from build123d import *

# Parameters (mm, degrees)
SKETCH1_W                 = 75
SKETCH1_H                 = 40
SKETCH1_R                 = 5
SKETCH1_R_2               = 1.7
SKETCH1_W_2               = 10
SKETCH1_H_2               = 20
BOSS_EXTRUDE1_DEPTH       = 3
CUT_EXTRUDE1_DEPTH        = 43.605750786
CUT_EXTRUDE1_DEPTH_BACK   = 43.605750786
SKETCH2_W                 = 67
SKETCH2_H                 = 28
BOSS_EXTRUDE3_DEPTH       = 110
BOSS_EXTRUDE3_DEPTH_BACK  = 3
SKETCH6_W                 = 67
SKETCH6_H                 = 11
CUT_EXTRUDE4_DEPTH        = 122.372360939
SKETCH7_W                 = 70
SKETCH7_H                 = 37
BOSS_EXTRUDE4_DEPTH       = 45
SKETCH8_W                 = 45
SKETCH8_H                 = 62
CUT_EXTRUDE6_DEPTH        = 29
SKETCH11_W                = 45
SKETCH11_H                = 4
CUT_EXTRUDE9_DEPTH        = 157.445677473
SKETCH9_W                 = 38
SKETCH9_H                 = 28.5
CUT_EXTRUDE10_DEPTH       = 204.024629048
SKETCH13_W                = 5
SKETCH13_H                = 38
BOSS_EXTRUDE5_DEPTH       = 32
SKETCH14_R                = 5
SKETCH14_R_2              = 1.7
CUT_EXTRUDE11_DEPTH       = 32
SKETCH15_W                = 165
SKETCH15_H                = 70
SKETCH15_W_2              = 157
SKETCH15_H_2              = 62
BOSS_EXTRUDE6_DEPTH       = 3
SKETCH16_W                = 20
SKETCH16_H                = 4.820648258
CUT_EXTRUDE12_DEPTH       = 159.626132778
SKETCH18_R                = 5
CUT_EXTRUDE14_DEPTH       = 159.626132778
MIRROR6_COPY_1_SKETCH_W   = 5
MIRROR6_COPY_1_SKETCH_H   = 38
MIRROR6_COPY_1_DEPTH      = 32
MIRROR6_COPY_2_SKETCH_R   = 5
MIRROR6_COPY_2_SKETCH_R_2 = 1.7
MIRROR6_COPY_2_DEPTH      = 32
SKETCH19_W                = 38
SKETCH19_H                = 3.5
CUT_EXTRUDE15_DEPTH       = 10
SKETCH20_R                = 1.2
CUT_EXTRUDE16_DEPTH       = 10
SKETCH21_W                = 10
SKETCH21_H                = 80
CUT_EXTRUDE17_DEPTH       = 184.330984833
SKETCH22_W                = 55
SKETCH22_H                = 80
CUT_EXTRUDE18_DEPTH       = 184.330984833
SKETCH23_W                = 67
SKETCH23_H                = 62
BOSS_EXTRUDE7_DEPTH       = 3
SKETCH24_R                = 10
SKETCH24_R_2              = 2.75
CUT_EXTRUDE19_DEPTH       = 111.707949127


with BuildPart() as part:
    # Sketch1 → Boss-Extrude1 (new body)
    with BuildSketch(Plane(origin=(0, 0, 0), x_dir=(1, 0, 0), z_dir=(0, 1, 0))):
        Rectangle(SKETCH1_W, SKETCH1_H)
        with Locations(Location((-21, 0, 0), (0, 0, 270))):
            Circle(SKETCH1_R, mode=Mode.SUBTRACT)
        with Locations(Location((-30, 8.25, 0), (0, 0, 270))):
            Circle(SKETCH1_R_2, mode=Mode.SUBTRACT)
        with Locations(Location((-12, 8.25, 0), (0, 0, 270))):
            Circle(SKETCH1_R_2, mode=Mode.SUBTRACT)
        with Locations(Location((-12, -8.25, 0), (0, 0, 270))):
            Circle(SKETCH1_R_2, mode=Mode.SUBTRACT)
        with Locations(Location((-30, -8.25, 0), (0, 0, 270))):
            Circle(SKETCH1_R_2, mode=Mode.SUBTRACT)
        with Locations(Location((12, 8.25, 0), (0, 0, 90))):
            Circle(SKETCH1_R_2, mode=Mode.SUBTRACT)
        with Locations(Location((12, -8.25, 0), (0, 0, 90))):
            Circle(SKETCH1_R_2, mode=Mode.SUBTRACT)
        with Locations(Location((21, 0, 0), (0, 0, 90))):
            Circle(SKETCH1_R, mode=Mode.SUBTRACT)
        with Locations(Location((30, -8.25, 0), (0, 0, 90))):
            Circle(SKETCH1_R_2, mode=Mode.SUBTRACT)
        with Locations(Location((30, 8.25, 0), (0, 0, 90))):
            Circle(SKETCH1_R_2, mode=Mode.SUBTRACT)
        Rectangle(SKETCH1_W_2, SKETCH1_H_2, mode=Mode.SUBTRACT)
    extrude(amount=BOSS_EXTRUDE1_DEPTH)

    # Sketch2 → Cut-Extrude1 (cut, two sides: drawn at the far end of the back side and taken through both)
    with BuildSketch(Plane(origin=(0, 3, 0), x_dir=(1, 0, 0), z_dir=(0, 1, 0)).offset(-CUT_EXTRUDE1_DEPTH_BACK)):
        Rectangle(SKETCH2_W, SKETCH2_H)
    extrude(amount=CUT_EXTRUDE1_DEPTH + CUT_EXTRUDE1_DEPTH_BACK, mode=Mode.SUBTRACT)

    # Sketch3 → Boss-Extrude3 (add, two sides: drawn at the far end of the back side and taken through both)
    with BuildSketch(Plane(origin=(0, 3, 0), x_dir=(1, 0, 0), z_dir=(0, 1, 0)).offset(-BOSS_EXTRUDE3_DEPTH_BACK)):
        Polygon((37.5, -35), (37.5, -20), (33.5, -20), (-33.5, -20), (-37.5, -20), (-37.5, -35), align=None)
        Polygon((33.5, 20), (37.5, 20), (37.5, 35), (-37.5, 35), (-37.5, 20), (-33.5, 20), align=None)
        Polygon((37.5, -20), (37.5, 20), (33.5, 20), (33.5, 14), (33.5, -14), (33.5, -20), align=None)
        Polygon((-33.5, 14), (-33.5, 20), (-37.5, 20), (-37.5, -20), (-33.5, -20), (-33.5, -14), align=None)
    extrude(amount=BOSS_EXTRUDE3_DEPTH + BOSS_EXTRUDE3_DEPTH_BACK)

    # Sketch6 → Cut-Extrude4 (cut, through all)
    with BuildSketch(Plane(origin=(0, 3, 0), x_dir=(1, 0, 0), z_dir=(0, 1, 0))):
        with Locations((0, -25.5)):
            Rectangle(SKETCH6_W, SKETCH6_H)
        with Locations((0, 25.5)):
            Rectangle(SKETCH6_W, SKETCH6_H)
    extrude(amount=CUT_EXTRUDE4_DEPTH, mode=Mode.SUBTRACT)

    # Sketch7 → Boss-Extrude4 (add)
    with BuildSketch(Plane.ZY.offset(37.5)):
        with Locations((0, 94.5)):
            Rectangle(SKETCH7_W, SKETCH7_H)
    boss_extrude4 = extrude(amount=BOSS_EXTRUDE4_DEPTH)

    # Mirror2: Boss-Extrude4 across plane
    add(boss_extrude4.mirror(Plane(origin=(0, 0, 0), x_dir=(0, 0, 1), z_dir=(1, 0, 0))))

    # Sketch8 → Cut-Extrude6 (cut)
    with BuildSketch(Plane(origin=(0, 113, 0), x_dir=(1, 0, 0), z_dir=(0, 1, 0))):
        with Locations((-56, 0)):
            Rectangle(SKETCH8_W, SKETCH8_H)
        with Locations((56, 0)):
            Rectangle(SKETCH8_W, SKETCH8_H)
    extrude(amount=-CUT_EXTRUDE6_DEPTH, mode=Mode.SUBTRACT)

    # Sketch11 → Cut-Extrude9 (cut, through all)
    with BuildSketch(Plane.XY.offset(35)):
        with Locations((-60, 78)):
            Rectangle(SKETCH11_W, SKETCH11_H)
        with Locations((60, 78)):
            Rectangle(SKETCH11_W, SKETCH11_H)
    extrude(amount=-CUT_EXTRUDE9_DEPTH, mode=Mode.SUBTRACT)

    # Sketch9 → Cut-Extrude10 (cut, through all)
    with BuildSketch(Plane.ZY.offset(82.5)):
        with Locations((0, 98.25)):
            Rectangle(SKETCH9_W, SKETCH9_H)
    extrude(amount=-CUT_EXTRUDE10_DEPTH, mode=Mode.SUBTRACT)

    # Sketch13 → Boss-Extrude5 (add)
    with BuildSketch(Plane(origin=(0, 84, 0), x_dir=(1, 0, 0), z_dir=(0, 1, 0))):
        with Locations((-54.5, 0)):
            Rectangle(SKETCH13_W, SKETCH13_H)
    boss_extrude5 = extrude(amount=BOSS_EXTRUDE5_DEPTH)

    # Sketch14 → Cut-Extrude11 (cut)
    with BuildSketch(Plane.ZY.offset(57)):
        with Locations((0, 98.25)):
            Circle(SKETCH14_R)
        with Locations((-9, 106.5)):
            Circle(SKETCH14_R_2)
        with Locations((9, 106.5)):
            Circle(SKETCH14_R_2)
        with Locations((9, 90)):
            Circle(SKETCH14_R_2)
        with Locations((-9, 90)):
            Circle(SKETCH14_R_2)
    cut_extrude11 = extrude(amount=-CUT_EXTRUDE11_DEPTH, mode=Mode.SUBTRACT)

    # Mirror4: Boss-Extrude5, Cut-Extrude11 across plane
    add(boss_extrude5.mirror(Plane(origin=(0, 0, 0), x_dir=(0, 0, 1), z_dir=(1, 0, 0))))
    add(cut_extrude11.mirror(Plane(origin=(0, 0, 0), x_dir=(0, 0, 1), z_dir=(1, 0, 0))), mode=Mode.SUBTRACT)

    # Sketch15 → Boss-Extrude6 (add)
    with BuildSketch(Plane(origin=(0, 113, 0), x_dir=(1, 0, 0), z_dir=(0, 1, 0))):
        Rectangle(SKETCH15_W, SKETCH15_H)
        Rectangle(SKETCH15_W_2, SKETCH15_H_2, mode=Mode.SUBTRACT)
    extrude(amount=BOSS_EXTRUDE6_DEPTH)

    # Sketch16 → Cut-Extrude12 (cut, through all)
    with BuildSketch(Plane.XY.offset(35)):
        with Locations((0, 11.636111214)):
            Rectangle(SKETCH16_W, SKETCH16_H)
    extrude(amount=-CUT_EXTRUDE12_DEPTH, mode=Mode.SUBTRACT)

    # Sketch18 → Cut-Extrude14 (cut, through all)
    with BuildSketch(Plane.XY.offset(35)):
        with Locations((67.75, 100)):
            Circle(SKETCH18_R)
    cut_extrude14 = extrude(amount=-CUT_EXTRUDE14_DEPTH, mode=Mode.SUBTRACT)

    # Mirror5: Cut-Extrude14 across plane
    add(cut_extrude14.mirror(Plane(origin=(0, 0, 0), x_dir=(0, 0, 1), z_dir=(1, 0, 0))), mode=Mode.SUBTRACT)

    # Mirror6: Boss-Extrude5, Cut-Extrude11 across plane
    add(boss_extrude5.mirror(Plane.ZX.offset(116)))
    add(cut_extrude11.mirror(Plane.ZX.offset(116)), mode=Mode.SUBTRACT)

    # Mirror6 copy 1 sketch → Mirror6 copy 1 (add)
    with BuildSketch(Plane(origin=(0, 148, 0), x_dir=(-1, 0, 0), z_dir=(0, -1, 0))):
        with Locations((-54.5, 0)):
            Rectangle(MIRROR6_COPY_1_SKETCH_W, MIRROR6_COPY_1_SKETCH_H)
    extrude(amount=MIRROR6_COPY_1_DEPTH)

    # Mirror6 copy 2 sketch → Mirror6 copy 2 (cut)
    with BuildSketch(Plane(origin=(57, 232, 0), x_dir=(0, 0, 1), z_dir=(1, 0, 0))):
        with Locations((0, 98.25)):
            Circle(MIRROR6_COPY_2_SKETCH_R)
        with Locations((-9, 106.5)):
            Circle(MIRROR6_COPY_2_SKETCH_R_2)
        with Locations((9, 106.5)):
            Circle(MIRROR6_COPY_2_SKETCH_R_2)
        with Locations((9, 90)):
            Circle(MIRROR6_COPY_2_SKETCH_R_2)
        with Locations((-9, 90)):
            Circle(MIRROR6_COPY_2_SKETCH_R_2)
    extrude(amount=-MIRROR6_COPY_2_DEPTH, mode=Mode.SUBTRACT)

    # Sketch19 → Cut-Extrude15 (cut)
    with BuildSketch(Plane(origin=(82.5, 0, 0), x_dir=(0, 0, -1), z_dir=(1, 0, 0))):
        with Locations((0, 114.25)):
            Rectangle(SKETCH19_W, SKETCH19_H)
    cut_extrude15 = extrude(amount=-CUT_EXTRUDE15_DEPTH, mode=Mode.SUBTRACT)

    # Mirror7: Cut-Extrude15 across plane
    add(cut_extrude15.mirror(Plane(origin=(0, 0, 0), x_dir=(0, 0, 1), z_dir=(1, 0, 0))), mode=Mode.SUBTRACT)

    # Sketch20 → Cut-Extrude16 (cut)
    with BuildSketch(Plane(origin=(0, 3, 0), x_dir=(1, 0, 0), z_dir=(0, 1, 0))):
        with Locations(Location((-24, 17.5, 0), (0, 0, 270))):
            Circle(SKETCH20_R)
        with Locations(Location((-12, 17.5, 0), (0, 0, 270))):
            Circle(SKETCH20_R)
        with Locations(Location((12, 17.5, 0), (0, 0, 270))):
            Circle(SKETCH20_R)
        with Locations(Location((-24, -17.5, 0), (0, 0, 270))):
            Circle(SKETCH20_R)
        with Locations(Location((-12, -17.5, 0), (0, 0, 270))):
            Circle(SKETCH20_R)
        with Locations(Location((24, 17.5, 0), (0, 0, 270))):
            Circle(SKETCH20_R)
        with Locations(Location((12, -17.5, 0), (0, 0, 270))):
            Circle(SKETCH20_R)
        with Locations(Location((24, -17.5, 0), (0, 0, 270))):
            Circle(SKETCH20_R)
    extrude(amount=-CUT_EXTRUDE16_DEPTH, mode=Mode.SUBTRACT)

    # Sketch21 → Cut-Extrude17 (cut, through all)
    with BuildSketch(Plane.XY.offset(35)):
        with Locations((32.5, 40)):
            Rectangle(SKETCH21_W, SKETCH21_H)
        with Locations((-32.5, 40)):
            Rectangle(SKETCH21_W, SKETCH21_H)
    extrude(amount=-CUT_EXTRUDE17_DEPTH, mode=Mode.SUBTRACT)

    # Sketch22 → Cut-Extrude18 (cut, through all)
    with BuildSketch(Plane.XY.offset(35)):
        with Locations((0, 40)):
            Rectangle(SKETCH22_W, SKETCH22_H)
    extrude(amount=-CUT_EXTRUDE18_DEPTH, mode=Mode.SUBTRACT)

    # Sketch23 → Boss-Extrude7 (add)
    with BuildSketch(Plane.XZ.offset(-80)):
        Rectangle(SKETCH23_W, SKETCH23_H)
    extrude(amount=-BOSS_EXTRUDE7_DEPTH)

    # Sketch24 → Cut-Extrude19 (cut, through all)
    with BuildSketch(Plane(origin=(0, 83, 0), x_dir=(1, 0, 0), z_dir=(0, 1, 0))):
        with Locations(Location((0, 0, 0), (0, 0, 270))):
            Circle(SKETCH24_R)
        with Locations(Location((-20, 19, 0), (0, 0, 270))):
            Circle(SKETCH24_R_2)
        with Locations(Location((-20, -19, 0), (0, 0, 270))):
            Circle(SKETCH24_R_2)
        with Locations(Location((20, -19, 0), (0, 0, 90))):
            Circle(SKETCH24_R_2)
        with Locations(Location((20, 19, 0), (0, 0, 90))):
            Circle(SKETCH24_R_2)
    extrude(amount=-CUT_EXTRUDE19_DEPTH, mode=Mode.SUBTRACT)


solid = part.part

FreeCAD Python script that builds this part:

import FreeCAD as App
import Part
import Sketcher

V = App.Vector


def add_polygon(sketch, points):
    """Adds a closed chain of lines whose ends are joined by coincident constraints."""
    first, n = sketch.GeometryCount, len(points)
    for a, b in zip(points, points[1:] + points[:1]):
        sketch.addGeometry(Part.LineSegment(App.Vector(*a, 0), App.Vector(*b, 0)), False)
    for i in range(n):
        sketch.addConstraint(Sketcher.Constraint("Coincident", first + i, 2, first + (i + 1) % n, 1))

doc = App.newDocument("Part")
body = doc.addObject("PartDesign::Body", "Body")

sketch1 = body.newObject("Sketcher::SketchObject", "Sketch")
sketch1.AttachmentSupport = (doc.getObject("XZ_Plane"), [""])
sketch1.MapMode = "FlatFace"
add_polygon(sketch1, [(-37.5, -20), (-37.5, 20), (37.5, 20), (37.5, -20)])
sketch1.addGeometry(Part.Circle(V(-30, 8.25, 0), V(0, 0, 1), 1.7), False)
sketch1.addGeometry(Part.Circle(V(-12, 8.25, 0), V(0, 0, 1), 1.7), False)
sketch1.addGeometry(Part.Circle(V(12, 8.25, 0), V(0, 0, 1), 1.7), False)
sketch1.addGeometry(Part.Circle(V(30, 8.25, 0), V(0, 0, 1), 1.7), False)
sketch1.addGeometry(Part.Circle(V(-21, 0, 0), V(0, 0, 1), 5), False)
add_polygon(sketch1, [(5, 10), (-5, 10), (-5, -10), (5, -10)])
sketch1.addGeometry(Part.Circle(V(-30, -8.25, 0), V(0, 0, 1), 1.7), False)
sketch1.addGeometry(Part.Circle(V(-12, -8.25, 0), V(0, 0, 1), 1.7), False)
sketch1.addGeometry(Part.Circle(V(21, 0, 0), V(0, 0, 1), 5), False)
sketch1.addGeometry(Part.Circle(V(12, -8.25, 0), V(0, 0, 1), 1.7), False)
sketch1.addGeometry(Part.Circle(V(30, -8.25, 0), V(0, 0, 1), 1.7), False)
sketch1.addConstraint(Sketcher.Constraint("Vertical", 0))
sketch1.addConstraint(Sketcher.Constraint("Horizontal", 1))
sketch1.addConstraint(Sketcher.Constraint("Vertical", 2))
sketch1.addConstraint(Sketcher.Constraint("Horizontal", 3))
sketch1.addConstraint(Sketcher.Constraint("Horizontal", 9))
sketch1.addConstraint(Sketcher.Constraint("Vertical", 10))
sketch1.addConstraint(Sketcher.Constraint("Horizontal", 11))
sketch1.addConstraint(Sketcher.Constraint("Vertical", 12))
sketch1.addConstraint(Sketcher.Constraint("Equal", 4, 5))
sketch1.addConstraint(Sketcher.Constraint("Equal", 5, 6))
sketch1.addConstraint(Sketcher.Constraint("Equal", 6, 7))
sketch1.addConstraint(Sketcher.Constraint("Equal", 7, 13))
sketch1.addConstraint(Sketcher.Constraint("Equal", 13, 14))
sketch1.addConstraint(Sketcher.Constraint("Equal", 8, 15))
sketch1.addConstraint(Sketcher.Constraint("Equal", 14, 16))
sketch1.addConstraint(Sketcher.Constraint("Equal", 16, 17))
sketch1.addConstraint(Sketcher.Constraint("Symmetric", 7, 3, 13, 3, -1, 1))
sketch1.addConstraint(Sketcher.Constraint("Symmetric", 6, 3, 14, 3, -1, 1))
sketch1.addConstraint(Sketcher.Constraint("Symmetric", 8, 3, 15, 3, -1, 1))
sketch1.addConstraint(Sketcher.Constraint("Symmetric", 5, 3, 16, 3, -1, 1))
sketch1.addConstraint(Sketcher.Constraint("Symmetric", 4, 3, 17, 3, -1, 1))
sketch1.addConstraint(Sketcher.Constraint("Symmetric", 0, 2, 2, 2, -1, 1))
sketch1.addConstraint(Sketcher.Constraint("Symmetric", 9, 2, 11, 2, -1, 1))
sketch1.addConstraint(Sketcher.Constraint("Symmetric", 5, 3, 6, 3, -2))
sketch1.addConstraint(Sketcher.Constraint("Symmetric", 4, 3, 7, 3, -2))
sketch1.addConstraint(Sketcher.Constraint("PointOnObject", 8, 3, -1))
sketch1.addConstraint(Sketcher.Constraint("Horizontal", 4, 3, 5, 3))
sketch1.addConstraint(Sketcher.Constraint("Diameter", 8, 10.0))
sketch1.addConstraint(Sketcher.Constraint("Diameter", 4, 3.4))
sketch1.addConstraint(Sketcher.Constraint("DistanceX", 1, 1, 1, 2, 75.0))
sketch1.addConstraint(Sketcher.Constraint("DistanceX", 9, 2, 9, 1, 10.0))
sketch1.addConstraint(Sketcher.Constraint("DistanceY", 0, 1, 0, 2, 40.0))
sketch1.addConstraint(Sketcher.Constraint("DistanceY", 10, 2, 10, 1, 20.0))
sketch1.addConstraint(Sketcher.Constraint("DistanceX", 4, 3, -1, 1, 30.0))
sketch1.addConstraint(Sketcher.Constraint("DistanceX", 5, 3, -1, 1, 12.0))
sketch1.addConstraint(Sketcher.Constraint("DistanceX", 8, 3, -1, 1, 21.0))
sketch1.addConstraint(Sketcher.Constraint("DistanceY", 13, 3, 4, 3, 16.5))
pad1 = body.newObject("PartDesign::Pad", "Pad")
pad1.Profile = sketch1
pad1.Length = 3
pad1.Reversed = True

sketch2 = body.newObject("Sketcher::SketchObject", "Sketch001")
sketch2.AttachmentSupport = (doc.getObject("XZ_Plane"), [""])
sketch2.MapMode = "FlatFace"
sketch2.AttachmentOffset = App.Placement(V(0, 0, -3), App.Rotation())
add_polygon(sketch2, [(-33.5, -14), (-33.5, 14), (33.5, 14), (33.5, -14)])
sketch2.addConstraint(Sketcher.Constraint("Vertical", 0))
sketch2.addConstraint(Sketcher.Constraint("Horizontal", 1))
sketch2.addConstraint(Sketcher.Constraint("Vertical", 2))
sketch2.addConstraint(Sketcher.Constraint("Horizontal", 3))
sketch2.addConstraint(Sketcher.Constraint("Symmetric", 0, 2, 2, 2, -1, 1))
sketch2.addConstraint(Sketcher.Constraint("DistanceX", 1, 1, 1, 2, 67.0))
sketch2.addConstraint(Sketcher.Constraint("DistanceY", 0, 1, 0, 2, 28.0))
pocket1 = body.newObject("PartDesign::Pocket", "Pocket")
pocket1.Profile = sketch2
pocket1.Type = "ThroughAll"
pocket1.Midplane = True

sketch3 = body.newObject("Sketcher::SketchObject", "Sketch002")
sketch3.AttachmentSupport = (doc.getObject("XZ_Plane"), [""])
sketch3.MapMode = "FlatFace"
sketch3.AttachmentOffset = App.Placement(V(0, 0, -3), App.Rotation())
add_polygon(sketch3, [(37.5, 35), (37.5, -35), (-37.5, -35), (-37.5, 35)])
add_polygon(sketch3, [(-33.5, -20), (33.5, -20), (33.5, 20), (-33.5, 20)])
sketch3.addConstraint(Sketcher.Constraint("Vertical", 0))
sketch3.addConstraint(Sketcher.Constraint("Horizontal", 1))
sketch3.addConstraint(Sketcher.Constraint("Vertical", 2))
sketch3.addConstraint(Sketcher.Constraint("Horizontal", 3))
sketch3.addConstraint(Sketcher.Constraint("Horizontal", 4))
sketch3.addConstraint(Sketcher.Constraint("Vertical", 5))
sketch3.addConstraint(Sketcher.Constraint("Horizontal", 6))
sketch3.addConstraint(Sketcher.Constraint("Vertical", 7))
sketch3.addConstraint(Sketcher.Constraint("Symmetric", 0, 2, 2, 2, -1, 1))
sketch3.addConstraint(Sketcher.Constraint("Symmetric", 4, 2, 6, 2, -1, 1))
sketch3.addConstraint(Sketcher.Constraint("DistanceX", 1, 2, 1, 1, 75.0))
sketch3.addConstraint(Sketcher.Constraint("DistanceX", 4, 1, 4, 2, 67.0))
sketch3.addConstraint(Sketcher.Constraint("DistanceY", 0, 2, 0, 1, 70.0))
sketch3.addConstraint(Sketcher.Constraint("DistanceY", 5, 1, 5, 2, 40.0))
pad2 = body.newObject("PartDesign::Pad", "Pad001")
pad2.Profile = sketch3
pad2.Type = "TwoLengths"
pad2.Length = 110
pad2.Length2 = 3
pad2.Reversed = True

sketch4 = body.newObject("Sketcher::SketchObject", "Sketch003")
sketch4.AttachmentSupport = (doc.getObject("XZ_Plane"), [""])
sketch4.MapMode = "FlatFace"
sketch4.AttachmentOffset = App.Placement(V(0, 0, -3), App.Rotation())
add_polygon(sketch4, [(-33.5, 20), (-33.5, 31), (33.5, 31), (33.5, 20)])
add_polygon(sketch4, [(-33.5, -31), (-33.5, -20), (33.5, -20), (33.5, -31)])
sketch4.addConstraint(Sketcher.Constraint("Vertical", 0))
sketch4.addConstraint(Sketcher.Constraint("Horizontal", 1))
sketch4.addConstraint(Sketcher.Constraint("Vertical", 2))
sketch4.addConstraint(Sketcher.Constraint("Horizontal", 3))
sketch4.addConstraint(Sketcher.Constraint("Vertical", 4))
sketch4.addConstraint(Sketcher.Constraint("Horizontal", 5))
sketch4.addConstraint(Sketcher.Constraint("Vertical", 6))
sketch4.addConstraint(Sketcher.Constraint("Horizontal", 7))
sketch4.addConstraint(Sketcher.Constraint("Symmetric", 2, 2, 4, 2, -1, 1))
sketch4.addConstraint(Sketcher.Constraint("Symmetric", 0, 2, 6, 2, -1, 1))
sketch4.addConstraint(Sketcher.Constraint("Vertical", 3, 2, 4, 2))
sketch4.addConstraint(Sketcher.Constraint("DistanceX", 1, 1, 1, 2, 67.0))
sketch4.addConstraint(Sketcher.Constraint("DistanceY", 0, 1, 0, 2, 11.0))
sketch4.addConstraint(Sketcher.Constraint("DistanceY", -1, 1, 0, 2, 31.0))
pocket2 = body.newObject("PartDesign::Pocket", "Pocket001")
pocket2.Profile = sketch4
pocket2.Type = "ThroughAll"

sketch5 = body.newObject("Sketcher::SketchObject", "Sketch004")
sketch5.AttachmentSupport = (doc.getObject("YZ_Plane"), [""])
sketch5.MapMode = "FlatFace"
sketch5.AttachmentOffset = App.Placement(V(0, 0, -37.5), App.Rotation())
add_polygon(sketch5, [(113, -35), (76, -35), (76, 35), (113, 35)])
sketch5.addConstraint(Sketcher.Constraint("Horizontal", 0))
sketch5.addConstraint(Sketcher.Constraint("Vertical", 1))
sketch5.addConstraint(Sketcher.Constraint("Horizontal", 2))
sketch5.addConstraint(Sketcher.Constraint("Vertical", 3))
sketch5.addConstraint(Sketcher.Constraint("DistanceX", 0, 2, 0, 1, 37.0))
sketch5.addConstraint(Sketcher.Constraint("DistanceY", 1, 1, 1, 2, 70.0))
sketch5.addConstraint(Sketcher.Constraint("DistanceX", -1, 1, 0, 2, 76.0))
sketch5.addConstraint(Sketcher.Constraint("DistanceY", 0, 2, -1, 1, 35.0))
pad3 = body.newObject("PartDesign::Pad", "Pad002")
pad3.Profile = sketch5
pad3.Length = 45
pad3.Reversed = True
doc.recompute()

mirrored = body.newObject("PartDesign::Mirrored", "Mirrored")
mirrored.Originals = [pad3]
mirrored.MirrorPlane = (doc.getObject("YZ_Plane"), [""])
body.Tip = mirrored

sketch6 = body.newObject("Sketcher::SketchObject", "Sketch005")
sketch6.AttachmentSupport = (doc.getObject("XZ_Plane"), [""])
sketch6.MapMode = "FlatFace"
sketch6.AttachmentOffset = App.Placement(V(0, 0, -113), App.Rotation())
add_polygon(sketch6, [(-78.5, -31), (-78.5, 31), (-33.5, 31), (-33.5, -31)])
add_polygon(sketch6, [(33.5, -31), (33.5, 31), (78.5, 31), (78.5, -31)])
sketch6.addConstraint(Sketcher.Constraint("Vertical", 0))
sketch6.addConstraint(Sketcher.Constraint("Horizontal", 1))
sketch6.addConstraint(Sketcher.Constraint("Vertical", 2))
sketch6.addConstraint(Sketcher.Constraint("Horizontal", 3))
sketch6.addConstraint(Sketcher.Constraint("Vertical", 4))
sketch6.addConstraint(Sketcher.Constraint("Horizontal", 5))
sketch6.addConstraint(Sketcher.Constraint("Vertical", 6))
sketch6.addConstraint(Sketcher.Constraint("Horizontal", 7))
sketch6.addConstraint(Sketcher.Constraint("Symmetric", 2, 2, 4, 2, -1, 1))
sketch6.addConstraint(Sketcher.Constraint("Symmetric", 0, 2, 6, 2, -1, 1))
sketch6.addConstraint(Sketcher.Constraint("Horizontal", 1, 2, 4, 2))
sketch6.addConstraint(Sketcher.Constraint("DistanceX", 1, 1, 1, 2, 45.0))
sketch6.addConstraint(Sketcher.Constraint("DistanceY", 0, 1, 0, 2, 62.0))
sketch6.addConstraint(Sketcher.Constraint("DistanceX", 1, 2, 4, 2, 67.0))
pocket3 = body.newObject("PartDesign::Pocket", "Pocket002")
pocket3.Profile = sketch6
pocket3.Length = 29
pocket3.Reversed = True

sketch7 = body.newObject("Sketcher::SketchObject", "Sketch006")
sketch7.AttachmentSupport = (doc.getObject("XY_Plane"), [""])
sketch7.MapMode = "FlatFace"
sketch7.AttachmentOffset = App.Placement(V(0, 0, 35), App.Rotation())
add_polygon(sketch7, [(-82.5, 80), (-82.5, 76), (-37.5, 76), (-37.5, 80)])
add_polygon(sketch7, [(37.5, 80), (37.5, 76), (82.5, 76), (82.5, 80)])
sketch7.addConstraint(Sketcher.Constraint("Vertical", 0))
sketch7.addConstraint(Sketcher.Constraint("Horizontal", 1))
sketch7.addConstraint(Sketcher.Constraint("Vertical", 2))
sketch7.addConstraint(Sketcher.Constraint("Horizontal", 3))
sketch7.addConstraint(Sketcher.Constraint("Vertical", 4))
sketch7.addConstraint(Sketcher.Constraint("Horizontal", 5))
sketch7.addConstraint(Sketcher.Constraint("Vertical", 6))
sketch7.addConstraint(Sketcher.Constraint("Horizontal", 7))
sketch7.addConstraint(Sketcher.Constraint("Symmetric", 1, 2, 4, 2, -2))
sketch7.addConstraint(Sketcher.Constraint("Symmetric", 3, 2, 6, 2, -2))
sketch7.addConstraint(Sketcher.Constraint("DistanceX", 1, 1, 1, 2, 45.0))
sketch7.addConstraint(Sketcher.Constraint("DistanceY", 0, 2, 0, 1, 4.0))
sketch7.addConstraint(Sketcher.Constraint("DistanceY", -1, 1, 0, 2, 76.0))
sketch7.addConstraint(Sketcher.Constraint("DistanceX", 1, 2, 4, 2, 75.0))
pocket4 = body.newObject("PartDesign::Pocket", "Pocket003")
pocket4.Profile = sketch7
pocket4.Type = "ThroughAll"

sketch8 = body.newObject("Sketcher::SketchObject", "Sketch007")
sketch8.AttachmentSupport = (doc.getObject("YZ_Plane"), [""])
sketch8.MapMode = "FlatFace"
sketch8.AttachmentOffset = App.Placement(V(0, 0, -82.5), App.Rotation())
add_polygon(sketch8, [(112.5, -19), (84, -19), (84, 19), (112.5, 19)])
sketch8.addConstraint(Sketcher.Constraint("Horizontal", 0))
sketch8.addConstraint(Sketcher.Constraint("Vertical", 1))
sketch8.addConstraint(Sketcher.Constraint("Horizontal", 2))
sketch8.addConstraint(Sketcher.Constraint("Vertical", 3))
sketch8.addConstraint(Sketcher.Constraint("DistanceY", 1, 1, 1, 2, 38.0))
sketch8.addConstraint(Sketcher.Constraint("DistanceX", 0, 2, 0, 1, 28.5))
sketch8.addConstraint(Sketcher.Constraint("DistanceX", -1, 1, 0, 2, 84.0))
sketch8.addConstraint(Sketcher.Constraint("DistanceY", 0, 2, -1, 1, 19.0))
pocket5 = body.newObject("PartDesign::Pocket", "Pocket004")
pocket5.Profile = sketch8
pocket5.Type = "ThroughAll"
pocket5.Reversed = True

sketch9 = body.newObject("Sketcher::SketchObject", "Sketch008")
sketch9.AttachmentSupport = (doc.getObject("XZ_Plane"), [""])
sketch9.MapMode = "FlatFace"
sketch9.AttachmentOffset = App.Placement(V(0, 0, -84), App.Rotation())
add_polygon(sketch9, [(-57, -19), (-57, 19), (-52, 19), (-52, -19)])
sketch9.addConstraint(Sketcher.Constraint("Vertical", 0))
sketch9.addConstraint(Sketcher.Constraint("Horizontal", 1))
sketch9.addConstraint(Sketcher.Constraint("Vertical", 2))
sketch9.addConstraint(Sketcher.Constraint("Horizontal", 3))
sketch9.addConstraint(Sketcher.Constraint("DistanceX", 1, 1, 1, 2, 5.0))
sketch9.addConstraint(Sketcher.Constraint("DistanceY", 0, 1, 0, 2, 38.0))
sketch9.addConstraint(Sketcher.Constraint("DistanceX", 0, 2, -1, 1, 57.0))
sketch9.addConstraint(Sketcher.Constraint("DistanceY", -1, 1, 0, 2, 19.0))
pad4 = body.newObject("PartDesign::Pad", "Pad003")
pad4.Profile = sketch9
pad4.Length = 32
pad4.Reversed = True

sketch10 = body.newObject("Sketcher::SketchObject", "Sketch009")
sketch10.AttachmentSupport = (doc.getObject("YZ_Plane"), [""])
sketch10.MapMode = "FlatFace"
sketch10.AttachmentOffset = App.Placement(V(0, 0, -57), App.Rotation())
sketch10.addGeometry(Part.Circle(V(98.25, 0, 0), V(0, 0, 1), 5), False)
sketch10.addGeometry(Part.Circle(V(106.5, -9, 0), V(0, 0, 1), 1.7), False)
sketch10.addGeometry(Part.Circle(V(106.5, 9, 0), V(0, 0, 1), 1.7), False)
sketch10.addGeometry(Part.Circle(V(90, 9, 0), V(0, 0, 1), 1.7), False)
sketch10.addGeometry(Part.Circle(V(90, -9, 0), V(0, 0, 1), 1.7), False)
sketch10.addConstraint(Sketcher.Constraint("Equal", 1, 2))
sketch10.addConstraint(Sketcher.Constraint("Equal", 2, 3))
sketch10.addConstraint(Sketcher.Constraint("Equal", 3, 4))
sketch10.addConstraint(Sketcher.Constraint("Symmetric", 1, 3, 2, 3, -1))
sketch10.addConstraint(Sketcher.Constraint("Symmetric", 3, 3, 4, 3, -1))
sketch10.addConstraint(Sketcher.Constraint("PointOnObject", 0, 3, -1))
sketch10.addConstraint(Sketcher.Constraint("Horizontal", 2, 3, 3, 3))
sketch10.addConstraint(Sketcher.Constraint("Diameter", 0, 10.0))
sketch10.addConstraint(Sketcher.Constraint("Diameter", 1, 3.4))
sketch10.addConstraint(Sketcher.Constraint("DistanceY", 1, 3, -1, 1, 9.0))
sketch10.addConstraint(Sketcher.Constraint("DistanceX", -1, 1, 3, 3, 90.0))
sketch10.addConstraint(Sketcher.Constraint("DistanceX", -1, 1, 1, 3, 106.5))
sketch10.addConstraint(Sketcher.Constraint("DistanceX", -1, 1, 0, 3, 98.25))
pocket6 = body.newObject("PartDesign::Pocket", "Pocket005")
pocket6.Profile = sketch10
pocket6.Length = 32
pocket6.Reversed = True
doc.recompute()

mirrored2 = body.newObject("PartDesign::Mirrored", "Mirrored001")
mirrored2.Originals = [pad4, pocket6]
mirrored2.MirrorPlane = (doc.getObject("YZ_Plane"), [""])
body.Tip = mirrored2

sketch11 = body.newObject("Sketcher::SketchObject", "Sketch010")
sketch11.AttachmentSupport = (doc.getObject("XZ_Plane"), [""])
sketch11.MapMode = "FlatFace"
sketch11.AttachmentOffset = App.Placement(V(0, 0, -113), App.Rotation())
add_polygon(sketch11, [(-82.5, -35), (-82.5, 35), (82.5, 35), (82.5, -35)])
add_polygon(sketch11, [(78.5, 31), (-78.5, 31), (-78.5, -31), (78.5, -31)])
sketch11.addConstraint(Sketcher.Constraint("Vertical", 0))
sketch11.addConstraint(Sketcher.Constraint("Horizontal", 1))
sketch11.addConstraint(Sketcher.Constraint("Vertical", 2))
sketch11.addConstraint(Sketcher.Constraint("Horizontal", 3))
sketch11.addConstraint(Sketcher.Constraint("Horizontal", 4))
sketch11.addConstraint(Sketcher.Constraint("Vertical", 5))
sketch11.addConstraint(Sketcher.Constraint("Horizontal", 6))
sketch11.addConstraint(Sketcher.Constraint("Vertical", 7))
sketch11.addConstraint(Sketcher.Constraint("Symmetric", 0, 2, 2, 2, -1, 1))
sketch11.addConstraint(Sketcher.Constraint("Symmetric", 4, 2, 6, 2, -1, 1))
sketch11.addConstraint(Sketcher.Constraint("DistanceX", 1, 1, 1, 2, 165.0))
sketch11.addConstraint(Sketcher.Constraint("DistanceX", 4, 2, 4, 1, 157.0))
sketch11.addConstraint(Sketcher.Constraint("DistanceY", 0, 1, 0, 2, 70.0))
sketch11.addConstraint(Sketcher.Constraint("DistanceY", 5, 2, 5, 1, 62.0))
pad5 = body.newObject("PartDesign::Pad", "Pad004")
pad5.Profile = sketch11
pad5.Length = 3
pad5.Reversed = True

sketch12 = body.newObject("Sketcher::SketchObject", "Sketch011")
sketch12.AttachmentSupport = (doc.getObject("XY_Plane"), [""])
sketch12.MapMode = "FlatFace"
sketch12.AttachmentOffset = App.Placement(V(0, 0, 35), App.Rotation())
add_polygon(sketch12, [(-10, 14.046435), (-10, 9.225787), (10, 9.225787), (10, 14.046435)])
sketch12.addConstraint(Sketcher.Constraint("Vertical", 0))
sketch12.addConstraint(Sketcher.Constraint("Horizontal", 1))
sketch12.addConstraint(Sketcher.Constraint("Vertical", 2))
sketch12.addConstraint(Sketcher.Constraint("Horizontal", 3))
sketch12.addConstraint(Sketcher.Constraint("DistanceX", 1, 1, 1, 2, 20.0))
sketch12.addConstraint(Sketcher.Constraint("DistanceX", 0, 2, -1, 1, 10.0))
sketch12.addConstraint(Sketcher.Constraint("DistanceY", 0, 2, 0, 1, 4.820648))
sketch12.addConstraint(Sketcher.Constraint("DistanceY", -1, 1, 0, 2, 9.225787))
pocket7 = body.newObject("PartDesign::Pocket", "Pocket006")
pocket7.Profile = sketch12
pocket7.Type = "ThroughAll"

sketch13 = body.newObject("Sketcher::SketchObject", "Sketch012")
sketch13.AttachmentSupport = (doc.getObject("XY_Plane"), [""])
sketch13.MapMode = "FlatFace"
sketch13.AttachmentOffset = App.Placement(V(0, 0, 35), App.Rotation())
sketch13.addGeometry(Part.Circle(V(67.75, 100, 0), V(0, 0, 1), 5), False)
sketch13.addConstraint(Sketcher.Constraint("Diameter", 0, 10.0))
sketch13.addConstraint(Sketcher.Constraint("DistanceY", -1, 1, 0, 3, 100.0))
sketch13.addConstraint(Sketcher.Constraint("DistanceX", -1, 1, 0, 3, 67.75))
pocket8 = body.newObject("PartDesign::Pocket", "Pocket007")
pocket8.Profile = sketch13
pocket8.Type = "ThroughAll"
doc.recompute()

mirrored3 = body.newObject("PartDesign::Mirrored", "Mirrored002")
mirrored3.Originals = [pocket8]
mirrored3.MirrorPlane = (doc.getObject("YZ_Plane"), [""])
body.Tip = mirrored3
doc.recompute()

datumplane = body.newObject("PartDesign::Plane", "DatumPlane")
datumplane.AttachmentSupport = (doc.getObject("XZ_Plane"), [""])
datumplane.MapMode = "FlatFace"
datumplane.AttachmentOffset = App.Placement(V(0, 0, -116), App.Rotation())
mirrored4 = body.newObject("PartDesign::Mirrored", "Mirrored003")
mirrored4.Originals = [pad4, pocket6]
mirrored4.MirrorPlane = (datumplane, [""])
body.Tip = mirrored4

sketch14 = body.newObject("Sketcher::SketchObject", "Sketch013")
sketch14.AttachmentSupport = (doc.getObject("XZ_Plane"), [""])
sketch14.MapMode = "FlatFace"
sketch14.AttachmentOffset = App.Placement(V(0, 0, -148), App.Rotation())
add_polygon(sketch14, [(57, -19), (57, 19), (52, 19), (52, -19)])
sketch14.addConstraint(Sketcher.Constraint("Vertical", 0))
sketch14.addConstraint(Sketcher.Constraint("Horizontal", 1))
sketch14.addConstraint(Sketcher.Constraint("Vertical", 2))
sketch14.addConstraint(Sketcher.Constraint("Horizontal", 3))
sketch14.addConstraint(Sketcher.Constraint("DistanceX", 1, 2, 1, 1, 5.0))
sketch14.addConstraint(Sketcher.Constraint("DistanceY", 0, 1, 0, 2, 38.0))
sketch14.addConstraint(Sketcher.Constraint("DistanceX", -1, 1, 0, 2, 57.0))
sketch14.addConstraint(Sketcher.Constraint("DistanceY", -1, 1, 0, 2, 19.0))
pad6 = body.newObject("PartDesign::Pad", "Pad005")
pad6.Profile = sketch14
pad6.Length = 32

sketch15 = body.newObject("Sketcher::SketchObject", "Sketch014")
sketch15.AttachmentSupport = (doc.getObject("YZ_Plane"), [""])
sketch15.MapMode = "FlatFace"
sketch15.AttachmentOffset = App.Placement(V(0, 0, 57), App.Rotation())
sketch15.addGeometry(Part.Circle(V(133.75, 0, 0), V(0, 0, 1), 5), False)
sketch15.addGeometry(Part.Circle(V(125.5, -9, 0), V(0, 0, 1), 1.7), False)
sketch15.addGeometry(Part.Circle(V(125.5, 9, 0), V(0, 0, 1), 1.7), False)
sketch15.addGeometry(Part.Circle(V(142, 9, 0), V(0, 0, 1), 1.7), False)
sketch15.addGeometry(Part.Circle(V(142, -9, 0), V(0, 0, 1), 1.7), False)
sketch15.addConstraint(Sketcher.Constraint("Equal", 1, 2))
sketch15.addConstraint(Sketcher.Constraint("Equal", 2, 3))
sketch15.addConstraint(Sketcher.Constraint("Equal", 3, 4))
sketch15.addConstraint(Sketcher.Constraint("Symmetric", 1, 3, 2, 3, -1))
sketch15.addConstraint(Sketcher.Constraint("Symmetric", 3, 3, 4, 3, -1))
sketch15.addConstraint(Sketcher.Constraint("PointOnObject", 0, 3, -1))
sketch15.addConstraint(Sketcher.Constraint("Horizontal", 2, 3, 3, 3))
sketch15.addConstraint(Sketcher.Constraint("Diameter", 0, 10.0))
sketch15.addConstraint(Sketcher.Constraint("Diameter", 1, 3.4))
sketch15.addConstraint(Sketcher.Constraint("DistanceY", 1, 3, -1, 1, 9.0))
sketch15.addConstraint(Sketcher.Constraint("DistanceX", -1, 1, 3, 3, 142.0))
sketch15.addConstraint(Sketcher.Constraint("DistanceX", -1, 1, 1, 3, 125.5))
sketch15.addConstraint(Sketcher.Constraint("DistanceX", -1, 1, 0, 3, 133.75))
pocket9 = body.newObject("PartDesign::Pocket", "Pocket008")
pocket9.Profile = sketch15
pocket9.Length = 32

sketch16 = body.newObject("Sketcher::SketchObject", "Sketch015")
sketch16.AttachmentSupport = (doc.getObject("YZ_Plane"), [""])
sketch16.MapMode = "FlatFace"
sketch16.AttachmentOffset = App.Placement(V(0, 0, 82.5), App.Rotation())
add_polygon(sketch16, [(116, 19), (112.5, 19), (112.5, -19), (116, -19)])
sketch16.addConstraint(Sketcher.Constraint("Horizontal", 0))
sketch16.addConstraint(Sketcher.Constraint("Vertical", 1))
sketch16.addConstraint(Sketcher.Constraint("Horizontal", 2))
sketch16.addConstraint(Sketcher.Constraint("Vertical", 3))
sketch16.addConstraint(Sketcher.Constraint("DistanceY", 1, 2, 1, 1, 38.0))
sketch16.addConstraint(Sketcher.Constraint("DistanceX", 0, 2, 0, 1, 3.5))
sketch16.addConstraint(Sketcher.Constraint("DistanceY", -1, 1, 0, 2, 19.0))
sketch16.addConstraint(Sketcher.Constraint("DistanceX", -1, 1, 2, 2, 116.0))
pocket10 = body.newObject("PartDesign::Pocket", "Pocket009")
pocket10.Profile = sketch16
pocket10.Length = 10
doc.recompute()

mirrored5 = body.newObject("PartDesign::Mirrored", "Mirrored004")
mirrored5.Originals = [pocket10]
mirrored5.MirrorPlane = (doc.getObject("YZ_Plane"), [""])
body.Tip = mirrored5

sketch17 = body.newObject("Sketcher::SketchObject", "Sketch016")
sketch17.AttachmentSupport = (doc.getObject("XZ_Plane"), [""])
sketch17.MapMode = "FlatFace"
sketch17.AttachmentOffset = App.Placement(V(0, 0, -3), App.Rotation())
sketch17.addGeometry(Part.Circle(V(-24, -17.5, 0), V(0, 0, 1), 1.2), False)
sketch17.addGeometry(Part.Circle(V(-12, -17.5, 0), V(0, 0, 1), 1.2), False)
sketch17.addGeometry(Part.Circle(V(12, -17.5, 0), V(0, 0, 1), 1.2), False)
sketch17.addGeometry(Part.Circle(V(-24, 17.5, 0), V(0, 0, 1), 1.2), False)
sketch17.addGeometry(Part.Circle(V(-12, 17.5, 0), V(0, 0, 1), 1.2), False)
sketch17.addGeometry(Part.Circle(V(24, -17.5, 0), V(0, 0, 1), 1.2), False)
sketch17.addGeometry(Part.Circle(V(12, 17.5, 0), V(0, 0, 1), 1.2), False)
sketch17.addGeometry(Part.Circle(V(24, 17.5, 0), V(0, 0, 1), 1.2), False)
sketch17.addConstraint(Sketcher.Constraint("Equal", 0, 1))
sketch17.addConstraint(Sketcher.Constraint("Equal", 1, 2))
sketch17.addConstraint(Sketcher.Constraint("Equal", 2, 3))
sketch17.addConstraint(Sketcher.Constraint("Equal", 3, 4))
sketch17.addConstraint(Sketcher.Constraint("Equal", 4, 5))
sketch17.addConstraint(Sketcher.Constraint("Equal", 5, 6))
sketch17.addConstraint(Sketcher.Constraint("Equal", 6, 7))
sketch17.addConstraint(Sketcher.Constraint("Symmetric", 2, 3, 4, 3, -1, 1))
sketch17.addConstraint(Sketcher.Constraint("Symmetric", 3, 3, 5, 3, -1, 1))
sketch17.addConstraint(Sketcher.Constraint("Symmetric", 1, 3, 6, 3, -1, 1))
sketch17.addConstraint(Sketcher.Constraint("Symmetric", 0, 3, 7, 3, -1, 1))
sketch17.addConstraint(Sketcher.Constraint("Symmetric", 1, 3, 2, 3, -2))
sketch17.addConstraint(Sketcher.Constraint("Symmetric", 0, 3, 5, 3, -2))
sketch17.addConstraint(Sketcher.Constraint("Horizontal", 0, 3, 1, 3))
sketch17.addConstraint(Sketcher.Constraint("Diameter", 0, 2.4))
sketch17.addConstraint(Sketcher.Constraint("DistanceX", 0, 3, -1, 1, 24.0))
sketch17.addConstraint(Sketcher.Constraint("DistanceX", 1, 3, -1, 1, 12.0))
sketch17.addConstraint(Sketcher.Constraint("DistanceY", 0, 3, 3, 3, 35.0))
pocket11 = body.newObject("PartDesign::Pocket", "Pocket010")
pocket11.Profile = sketch17
pocket11.Length = 10
pocket11.Reversed = True

sketch18 = body.newObject("Sketcher::SketchObject", "Sketch017")
sketch18.AttachmentSupport = (doc.getObject("XY_Plane"), [""])
sketch18.MapMode = "FlatFace"
sketch18.AttachmentOffset = App.Placement(V(0, 0, 35), App.Rotation())
add_polygon(sketch18, [(27.5, 80), (27.5, 0), (37.5, 0), (37.5, 80)])
add_polygon(sketch18, [(-37.5, 80), (-37.5, 0), (-27.5, 0), (-27.5, 80)])
sketch18.addConstraint(Sketcher.Constraint("Vertical", 0))
sketch18.addConstraint(Sketcher.Constraint("Horizontal", 1))
sketch18.addConstraint(Sketcher.Constraint("Vertical", 2))
sketch18.addConstraint(Sketcher.Constraint("Horizontal", 3))
sketch18.addConstraint(Sketcher.Constraint("Vertical", 4))
sketch18.addConstraint(Sketcher.Constraint("Horizontal", 5))
sketch18.addConstraint(Sketcher.Constraint("Vertical", 6))
sketch18.addConstraint(Sketcher.Constraint("Horizontal", 7))
sketch18.addConstraint(Sketcher.Constraint("Symmetric", 1, 2, 4, 2, -1, 1))
sketch18.addConstraint(Sketcher.Constraint("Symmetric", 0, 2, 5, 2, -2))
sketch18.addConstraint(Sketcher.Constraint("Horizontal", 3, 2, 6, 2))
sketch18.addConstraint(Sketcher.Constraint("DistanceX", 1, 1, 1, 2, 10.0))
sketch18.addConstraint(Sketcher.Constraint("DistanceY", 0, 2, 0, 1, 80.0))
sketch18.addConstraint(Sketcher.Constraint("DistanceX", 4, 2, 0, 2, 65.0))
pocket12 = body.newObject("PartDesign::Pocket", "Pocket011")
pocket12.Profile = sketch18
pocket12.Type = "ThroughAll"

sketch19 = body.newObject("Sketcher::SketchObject", "Sketch018")
sketch19.AttachmentSupport = (doc.getObject("XY_Plane"), [""])
sketch19.MapMode = "FlatFace"
sketch19.AttachmentOffset = App.Placement(V(0, 0, 35), App.Rotation())
add_polygon(sketch19, [(-27.5, 80), (-27.5, 0), (27.5, 0), (27.5, 80)])
sketch19.addConstraint(Sketcher.Constraint("Vertical", 0))
sketch19.addConstraint(Sketcher.Constraint("Horizontal", 1))
sketch19.addConstraint(Sketcher.Constraint("Vertical", 2))
sketch19.addConstraint(Sketcher.Constraint("Horizontal", 3))
sketch19.addConstraint(Sketcher.Constraint("Symmetric", 0, 2, 1, 2, -1, 1))
sketch19.addConstraint(Sketcher.Constraint("DistanceX", 1, 1, 1, 2, 55.0))
sketch19.addConstraint(Sketcher.Constraint("DistanceY", 0, 2, 0, 1, 80.0))
pocket13 = body.newObject("PartDesign::Pocket", "Pocket012")
pocket13.Profile = sketch19
pocket13.Type = "ThroughAll"

sketch20 = body.newObject("Sketcher::SketchObject", "Sketch019")
sketch20.AttachmentSupport = (doc.getObject("XZ_Plane"), [""])
sketch20.MapMode = "FlatFace"
sketch20.AttachmentOffset = App.Placement(V(0, 0, -80), App.Rotation())
add_polygon(sketch20, [(-33.5, 31), (-33.5, -31), (33.5, -31), (33.5, 31)])
sketch20.addConstraint(Sketcher.Constraint("Vertical", 0))
sketch20.addConstraint(Sketcher.Constraint("Horizontal", 1))
sketch20.addConstraint(Sketcher.Constraint("Vertical", 2))
sketch20.addConstraint(Sketcher.Constraint("Horizontal", 3))
sketch20.addConstraint(Sketcher.Constraint("Symmetric", 0, 2, 2, 2, -1, 1))
sketch20.addConstraint(Sketcher.Constraint("DistanceX", 1, 1, 1, 2, 67.0))
sketch20.addConstraint(Sketcher.Constraint("DistanceY", 0, 2, 0, 1, 62.0))
pad7 = body.newObject("PartDesign::Pad", "Pad006")
pad7.Profile = sketch20
pad7.Length = 3
pad7.Reversed = True

sketch21 = body.newObject("Sketcher::SketchObject", "Sketch020")
sketch21.AttachmentSupport = (doc.getObject("XZ_Plane"), [""])
sketch21.MapMode = "FlatFace"
sketch21.AttachmentOffset = App.Placement(V(0, 0, -83), App.Rotation())
sketch21.addGeometry(Part.Circle(V(0, 0, 0), V(0, 0, 1), 10), False)
sketch21.addGeometry(Part.Circle(V(-20, -19, 0), V(0, 0, 1), 2.75), False)
sketch21.addGeometry(Part.Circle(V(-20, 19, 0), V(0, 0, 1), 2.75), False)
sketch21.addGeometry(Part.Circle(V(20, 19, 0), V(0, 0, 1), 2.75), False)
sketch21.addGeometry(Part.Circle(V(20, -19, 0), V(0, 0, 1), 2.75), False)
sketch21.addConstraint(Sketcher.Constraint("Coincident", 0, 3, -1, 1))
sketch21.addConstraint(Sketcher.Constraint("Equal", 1, 2))
sketch21.addConstraint(Sketcher.Constraint("Equal", 2, 3))
sketch21.addConstraint(Sketcher.Constraint("Equal", 3, 4))
sketch21.addConstraint(Sketcher.Constraint("Symmetric", 1, 3, 3, 3, -1, 1))
sketch21.addConstraint(Sketcher.Constraint("Symmetric", 2, 3, 4, 3, -1, 1))
sketch21.addConstraint(Sketcher.Constraint("Symmetric", 2, 3, 3, 3, -2))
sketch21.addConstraint(Sketcher.Constraint("Diameter", 0, 20.0))
sketch21.addConstraint(Sketcher.Constraint("Diameter", 1, 5.5))
sketch21.addConstraint(Sketcher.Constraint("DistanceX", 1, 3, -1, 1, 20.0))
sketch21.addConstraint(Sketcher.Constraint("DistanceY", 1, 3, -1, 1, 19.0))
pocket14 = body.newObject("PartDesign::Pocket", "Pocket013")
pocket14.Profile = sketch21
pocket14.Type = "ThroughAll"
pocket14.Reversed = True

doc.recompute()
